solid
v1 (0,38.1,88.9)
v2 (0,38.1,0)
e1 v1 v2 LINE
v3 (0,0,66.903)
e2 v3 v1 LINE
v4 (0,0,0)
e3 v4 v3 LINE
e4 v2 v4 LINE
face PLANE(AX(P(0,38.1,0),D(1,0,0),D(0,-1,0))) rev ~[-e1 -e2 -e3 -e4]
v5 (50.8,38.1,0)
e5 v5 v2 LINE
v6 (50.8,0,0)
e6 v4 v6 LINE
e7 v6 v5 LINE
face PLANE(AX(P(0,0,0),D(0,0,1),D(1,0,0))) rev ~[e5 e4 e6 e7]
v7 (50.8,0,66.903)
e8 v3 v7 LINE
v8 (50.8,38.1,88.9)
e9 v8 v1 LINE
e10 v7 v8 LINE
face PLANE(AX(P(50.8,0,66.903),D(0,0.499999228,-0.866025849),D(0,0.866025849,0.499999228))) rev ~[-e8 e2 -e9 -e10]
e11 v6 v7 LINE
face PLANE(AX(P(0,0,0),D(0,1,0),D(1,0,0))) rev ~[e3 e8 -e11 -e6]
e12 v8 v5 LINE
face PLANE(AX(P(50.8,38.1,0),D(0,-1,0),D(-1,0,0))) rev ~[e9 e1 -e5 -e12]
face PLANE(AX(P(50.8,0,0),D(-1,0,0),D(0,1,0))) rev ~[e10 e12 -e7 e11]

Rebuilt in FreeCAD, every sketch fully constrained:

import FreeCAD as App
import Part
import Sketcher
Q = App.Units.Quantity

doc = App.newDocument("Part")
params = doc.addObject("Spreadsheet::Sheet", "Params")
for row, (alias, value) in enumerate([
    ("sketch1_width", "2 in"),
    ("sketch1_height", "1.5 in"),
    ("pad1_length", "66.903 mm"),
    ("sketch2_width", "1.5 in"),
    ("pad2_length", "2 in"),
], start=1):
    params.set(f"A{row}", alias)
    params.set(f"B{row}", "=" + value)
    params.setAlias(f"B{row}", alias)

body = doc.addObject("PartDesign::Body", "Body")

sketch1 = body.newObject("Sketcher::SketchObject", "Sketch")
sketch1.AttachmentSupport = (doc.getObject("XY_Plane"), [""])
sketch1.MapMode = "FlatFace"
sketch1.addGeometry([
    Part.LineSegment(App.Vector(0, 38.1, 0), App.Vector(0, 0, 0)),
    Part.LineSegment(App.Vector(0, 0, 0), App.Vector(50.8, 0, 0)),
    Part.LineSegment(App.Vector(50.8, 0, 0), App.Vector(50.8, 38.1, 0)),
    Part.LineSegment(App.Vector(50.8, 38.1, 0), App.Vector(0, 38.1, 0)),
], False)
sketch1.addConstraint([
    Sketcher.Constraint("Coincident", 0, 2, 1, 1),
    Sketcher.Constraint("Coincident", 1, 2, 2, 1),
    Sketcher.Constraint("Coincident", 2, 2, 3, 1),
    Sketcher.Constraint("Coincident", 3, 2, 0, 1),
    Sketcher.Constraint("Vertical", 0),
    Sketcher.Constraint("Horizontal", 1),
    Sketcher.Constraint("Vertical", 2),
    Sketcher.Constraint("Horizontal", 3),
    Sketcher.Constraint("Coincident", 0, 2, -1, 1),
    Sketcher.Constraint("DistanceX", 1, 1, 1, 2, Q("2 in")),
    Sketcher.Constraint("DistanceY", 0, 2, 0, 1, Q("1.5 in")),
])
sketch1.setExpression("Constraints[9]", "Params.sketch1_width")
sketch1.setExpression("Constraints[10]", "Params.sketch1_height")
pad1 = body.newObject("PartDesign::Pad", "Pad")
pad1.Profile = sketch1
pad1.setExpression("Length", "Params.pad1_length")

sketch2 = body.newObject("Sketcher::SketchObject", "Sketch001")
sketch2.AttachmentSupport = (doc.getObject("YZ_Plane"), [""])
sketch2.MapMode = "FlatFace"
sketch2.AttachmentOffset = App.Placement(App.Vector(0, 0, 2 * 25.4), App.Rotation())
sketch2.addGeometry([
    Part.LineSegment(App.Vector(38.1, 88.9, 0), App.Vector(0, 66.903, 0)),
    Part.LineSegment(App.Vector(0, 66.903, 0), App.Vector(38.1, 66.903, 0)),
    Part.LineSegment(App.Vector(38.1, 66.903, 0), App.Vector(38.1, 88.9, 0)),
], False)
sketch2.addConstraint([
    Sketcher.Constraint("Coincident", 0, 2, 1, 1),
    Sketcher.Constraint("Coincident", 1, 2, 2, 1),
    Sketcher.Constraint("Coincident", 2, 2, 0, 1),
    Sketcher.Constraint("Horizontal", 1),
    Sketcher.Constraint("Vertical", 2),
    Sketcher.Constraint("PointOnObject", 0, 2, -2),
    Sketcher.Constraint("DistanceX", 1, 1, 1, 2, Q("1.5 in")),
    Sketcher.Constraint("Angle", 0, Q("-150 deg")),
    Sketcher.Constraint("DistanceY", -1, 1, 2, 2, Q("3.5 in")),
])
sketch2.setExpression("Constraints[6]", "Params.sketch2_width")
pad2 = body.newObject("PartDesign::Pad", "Pad001")
pad2.Profile = sketch2
pad2.setExpression("Length", "Params.pad2_length")
pad2.Reversed = True

doc.recompute()
